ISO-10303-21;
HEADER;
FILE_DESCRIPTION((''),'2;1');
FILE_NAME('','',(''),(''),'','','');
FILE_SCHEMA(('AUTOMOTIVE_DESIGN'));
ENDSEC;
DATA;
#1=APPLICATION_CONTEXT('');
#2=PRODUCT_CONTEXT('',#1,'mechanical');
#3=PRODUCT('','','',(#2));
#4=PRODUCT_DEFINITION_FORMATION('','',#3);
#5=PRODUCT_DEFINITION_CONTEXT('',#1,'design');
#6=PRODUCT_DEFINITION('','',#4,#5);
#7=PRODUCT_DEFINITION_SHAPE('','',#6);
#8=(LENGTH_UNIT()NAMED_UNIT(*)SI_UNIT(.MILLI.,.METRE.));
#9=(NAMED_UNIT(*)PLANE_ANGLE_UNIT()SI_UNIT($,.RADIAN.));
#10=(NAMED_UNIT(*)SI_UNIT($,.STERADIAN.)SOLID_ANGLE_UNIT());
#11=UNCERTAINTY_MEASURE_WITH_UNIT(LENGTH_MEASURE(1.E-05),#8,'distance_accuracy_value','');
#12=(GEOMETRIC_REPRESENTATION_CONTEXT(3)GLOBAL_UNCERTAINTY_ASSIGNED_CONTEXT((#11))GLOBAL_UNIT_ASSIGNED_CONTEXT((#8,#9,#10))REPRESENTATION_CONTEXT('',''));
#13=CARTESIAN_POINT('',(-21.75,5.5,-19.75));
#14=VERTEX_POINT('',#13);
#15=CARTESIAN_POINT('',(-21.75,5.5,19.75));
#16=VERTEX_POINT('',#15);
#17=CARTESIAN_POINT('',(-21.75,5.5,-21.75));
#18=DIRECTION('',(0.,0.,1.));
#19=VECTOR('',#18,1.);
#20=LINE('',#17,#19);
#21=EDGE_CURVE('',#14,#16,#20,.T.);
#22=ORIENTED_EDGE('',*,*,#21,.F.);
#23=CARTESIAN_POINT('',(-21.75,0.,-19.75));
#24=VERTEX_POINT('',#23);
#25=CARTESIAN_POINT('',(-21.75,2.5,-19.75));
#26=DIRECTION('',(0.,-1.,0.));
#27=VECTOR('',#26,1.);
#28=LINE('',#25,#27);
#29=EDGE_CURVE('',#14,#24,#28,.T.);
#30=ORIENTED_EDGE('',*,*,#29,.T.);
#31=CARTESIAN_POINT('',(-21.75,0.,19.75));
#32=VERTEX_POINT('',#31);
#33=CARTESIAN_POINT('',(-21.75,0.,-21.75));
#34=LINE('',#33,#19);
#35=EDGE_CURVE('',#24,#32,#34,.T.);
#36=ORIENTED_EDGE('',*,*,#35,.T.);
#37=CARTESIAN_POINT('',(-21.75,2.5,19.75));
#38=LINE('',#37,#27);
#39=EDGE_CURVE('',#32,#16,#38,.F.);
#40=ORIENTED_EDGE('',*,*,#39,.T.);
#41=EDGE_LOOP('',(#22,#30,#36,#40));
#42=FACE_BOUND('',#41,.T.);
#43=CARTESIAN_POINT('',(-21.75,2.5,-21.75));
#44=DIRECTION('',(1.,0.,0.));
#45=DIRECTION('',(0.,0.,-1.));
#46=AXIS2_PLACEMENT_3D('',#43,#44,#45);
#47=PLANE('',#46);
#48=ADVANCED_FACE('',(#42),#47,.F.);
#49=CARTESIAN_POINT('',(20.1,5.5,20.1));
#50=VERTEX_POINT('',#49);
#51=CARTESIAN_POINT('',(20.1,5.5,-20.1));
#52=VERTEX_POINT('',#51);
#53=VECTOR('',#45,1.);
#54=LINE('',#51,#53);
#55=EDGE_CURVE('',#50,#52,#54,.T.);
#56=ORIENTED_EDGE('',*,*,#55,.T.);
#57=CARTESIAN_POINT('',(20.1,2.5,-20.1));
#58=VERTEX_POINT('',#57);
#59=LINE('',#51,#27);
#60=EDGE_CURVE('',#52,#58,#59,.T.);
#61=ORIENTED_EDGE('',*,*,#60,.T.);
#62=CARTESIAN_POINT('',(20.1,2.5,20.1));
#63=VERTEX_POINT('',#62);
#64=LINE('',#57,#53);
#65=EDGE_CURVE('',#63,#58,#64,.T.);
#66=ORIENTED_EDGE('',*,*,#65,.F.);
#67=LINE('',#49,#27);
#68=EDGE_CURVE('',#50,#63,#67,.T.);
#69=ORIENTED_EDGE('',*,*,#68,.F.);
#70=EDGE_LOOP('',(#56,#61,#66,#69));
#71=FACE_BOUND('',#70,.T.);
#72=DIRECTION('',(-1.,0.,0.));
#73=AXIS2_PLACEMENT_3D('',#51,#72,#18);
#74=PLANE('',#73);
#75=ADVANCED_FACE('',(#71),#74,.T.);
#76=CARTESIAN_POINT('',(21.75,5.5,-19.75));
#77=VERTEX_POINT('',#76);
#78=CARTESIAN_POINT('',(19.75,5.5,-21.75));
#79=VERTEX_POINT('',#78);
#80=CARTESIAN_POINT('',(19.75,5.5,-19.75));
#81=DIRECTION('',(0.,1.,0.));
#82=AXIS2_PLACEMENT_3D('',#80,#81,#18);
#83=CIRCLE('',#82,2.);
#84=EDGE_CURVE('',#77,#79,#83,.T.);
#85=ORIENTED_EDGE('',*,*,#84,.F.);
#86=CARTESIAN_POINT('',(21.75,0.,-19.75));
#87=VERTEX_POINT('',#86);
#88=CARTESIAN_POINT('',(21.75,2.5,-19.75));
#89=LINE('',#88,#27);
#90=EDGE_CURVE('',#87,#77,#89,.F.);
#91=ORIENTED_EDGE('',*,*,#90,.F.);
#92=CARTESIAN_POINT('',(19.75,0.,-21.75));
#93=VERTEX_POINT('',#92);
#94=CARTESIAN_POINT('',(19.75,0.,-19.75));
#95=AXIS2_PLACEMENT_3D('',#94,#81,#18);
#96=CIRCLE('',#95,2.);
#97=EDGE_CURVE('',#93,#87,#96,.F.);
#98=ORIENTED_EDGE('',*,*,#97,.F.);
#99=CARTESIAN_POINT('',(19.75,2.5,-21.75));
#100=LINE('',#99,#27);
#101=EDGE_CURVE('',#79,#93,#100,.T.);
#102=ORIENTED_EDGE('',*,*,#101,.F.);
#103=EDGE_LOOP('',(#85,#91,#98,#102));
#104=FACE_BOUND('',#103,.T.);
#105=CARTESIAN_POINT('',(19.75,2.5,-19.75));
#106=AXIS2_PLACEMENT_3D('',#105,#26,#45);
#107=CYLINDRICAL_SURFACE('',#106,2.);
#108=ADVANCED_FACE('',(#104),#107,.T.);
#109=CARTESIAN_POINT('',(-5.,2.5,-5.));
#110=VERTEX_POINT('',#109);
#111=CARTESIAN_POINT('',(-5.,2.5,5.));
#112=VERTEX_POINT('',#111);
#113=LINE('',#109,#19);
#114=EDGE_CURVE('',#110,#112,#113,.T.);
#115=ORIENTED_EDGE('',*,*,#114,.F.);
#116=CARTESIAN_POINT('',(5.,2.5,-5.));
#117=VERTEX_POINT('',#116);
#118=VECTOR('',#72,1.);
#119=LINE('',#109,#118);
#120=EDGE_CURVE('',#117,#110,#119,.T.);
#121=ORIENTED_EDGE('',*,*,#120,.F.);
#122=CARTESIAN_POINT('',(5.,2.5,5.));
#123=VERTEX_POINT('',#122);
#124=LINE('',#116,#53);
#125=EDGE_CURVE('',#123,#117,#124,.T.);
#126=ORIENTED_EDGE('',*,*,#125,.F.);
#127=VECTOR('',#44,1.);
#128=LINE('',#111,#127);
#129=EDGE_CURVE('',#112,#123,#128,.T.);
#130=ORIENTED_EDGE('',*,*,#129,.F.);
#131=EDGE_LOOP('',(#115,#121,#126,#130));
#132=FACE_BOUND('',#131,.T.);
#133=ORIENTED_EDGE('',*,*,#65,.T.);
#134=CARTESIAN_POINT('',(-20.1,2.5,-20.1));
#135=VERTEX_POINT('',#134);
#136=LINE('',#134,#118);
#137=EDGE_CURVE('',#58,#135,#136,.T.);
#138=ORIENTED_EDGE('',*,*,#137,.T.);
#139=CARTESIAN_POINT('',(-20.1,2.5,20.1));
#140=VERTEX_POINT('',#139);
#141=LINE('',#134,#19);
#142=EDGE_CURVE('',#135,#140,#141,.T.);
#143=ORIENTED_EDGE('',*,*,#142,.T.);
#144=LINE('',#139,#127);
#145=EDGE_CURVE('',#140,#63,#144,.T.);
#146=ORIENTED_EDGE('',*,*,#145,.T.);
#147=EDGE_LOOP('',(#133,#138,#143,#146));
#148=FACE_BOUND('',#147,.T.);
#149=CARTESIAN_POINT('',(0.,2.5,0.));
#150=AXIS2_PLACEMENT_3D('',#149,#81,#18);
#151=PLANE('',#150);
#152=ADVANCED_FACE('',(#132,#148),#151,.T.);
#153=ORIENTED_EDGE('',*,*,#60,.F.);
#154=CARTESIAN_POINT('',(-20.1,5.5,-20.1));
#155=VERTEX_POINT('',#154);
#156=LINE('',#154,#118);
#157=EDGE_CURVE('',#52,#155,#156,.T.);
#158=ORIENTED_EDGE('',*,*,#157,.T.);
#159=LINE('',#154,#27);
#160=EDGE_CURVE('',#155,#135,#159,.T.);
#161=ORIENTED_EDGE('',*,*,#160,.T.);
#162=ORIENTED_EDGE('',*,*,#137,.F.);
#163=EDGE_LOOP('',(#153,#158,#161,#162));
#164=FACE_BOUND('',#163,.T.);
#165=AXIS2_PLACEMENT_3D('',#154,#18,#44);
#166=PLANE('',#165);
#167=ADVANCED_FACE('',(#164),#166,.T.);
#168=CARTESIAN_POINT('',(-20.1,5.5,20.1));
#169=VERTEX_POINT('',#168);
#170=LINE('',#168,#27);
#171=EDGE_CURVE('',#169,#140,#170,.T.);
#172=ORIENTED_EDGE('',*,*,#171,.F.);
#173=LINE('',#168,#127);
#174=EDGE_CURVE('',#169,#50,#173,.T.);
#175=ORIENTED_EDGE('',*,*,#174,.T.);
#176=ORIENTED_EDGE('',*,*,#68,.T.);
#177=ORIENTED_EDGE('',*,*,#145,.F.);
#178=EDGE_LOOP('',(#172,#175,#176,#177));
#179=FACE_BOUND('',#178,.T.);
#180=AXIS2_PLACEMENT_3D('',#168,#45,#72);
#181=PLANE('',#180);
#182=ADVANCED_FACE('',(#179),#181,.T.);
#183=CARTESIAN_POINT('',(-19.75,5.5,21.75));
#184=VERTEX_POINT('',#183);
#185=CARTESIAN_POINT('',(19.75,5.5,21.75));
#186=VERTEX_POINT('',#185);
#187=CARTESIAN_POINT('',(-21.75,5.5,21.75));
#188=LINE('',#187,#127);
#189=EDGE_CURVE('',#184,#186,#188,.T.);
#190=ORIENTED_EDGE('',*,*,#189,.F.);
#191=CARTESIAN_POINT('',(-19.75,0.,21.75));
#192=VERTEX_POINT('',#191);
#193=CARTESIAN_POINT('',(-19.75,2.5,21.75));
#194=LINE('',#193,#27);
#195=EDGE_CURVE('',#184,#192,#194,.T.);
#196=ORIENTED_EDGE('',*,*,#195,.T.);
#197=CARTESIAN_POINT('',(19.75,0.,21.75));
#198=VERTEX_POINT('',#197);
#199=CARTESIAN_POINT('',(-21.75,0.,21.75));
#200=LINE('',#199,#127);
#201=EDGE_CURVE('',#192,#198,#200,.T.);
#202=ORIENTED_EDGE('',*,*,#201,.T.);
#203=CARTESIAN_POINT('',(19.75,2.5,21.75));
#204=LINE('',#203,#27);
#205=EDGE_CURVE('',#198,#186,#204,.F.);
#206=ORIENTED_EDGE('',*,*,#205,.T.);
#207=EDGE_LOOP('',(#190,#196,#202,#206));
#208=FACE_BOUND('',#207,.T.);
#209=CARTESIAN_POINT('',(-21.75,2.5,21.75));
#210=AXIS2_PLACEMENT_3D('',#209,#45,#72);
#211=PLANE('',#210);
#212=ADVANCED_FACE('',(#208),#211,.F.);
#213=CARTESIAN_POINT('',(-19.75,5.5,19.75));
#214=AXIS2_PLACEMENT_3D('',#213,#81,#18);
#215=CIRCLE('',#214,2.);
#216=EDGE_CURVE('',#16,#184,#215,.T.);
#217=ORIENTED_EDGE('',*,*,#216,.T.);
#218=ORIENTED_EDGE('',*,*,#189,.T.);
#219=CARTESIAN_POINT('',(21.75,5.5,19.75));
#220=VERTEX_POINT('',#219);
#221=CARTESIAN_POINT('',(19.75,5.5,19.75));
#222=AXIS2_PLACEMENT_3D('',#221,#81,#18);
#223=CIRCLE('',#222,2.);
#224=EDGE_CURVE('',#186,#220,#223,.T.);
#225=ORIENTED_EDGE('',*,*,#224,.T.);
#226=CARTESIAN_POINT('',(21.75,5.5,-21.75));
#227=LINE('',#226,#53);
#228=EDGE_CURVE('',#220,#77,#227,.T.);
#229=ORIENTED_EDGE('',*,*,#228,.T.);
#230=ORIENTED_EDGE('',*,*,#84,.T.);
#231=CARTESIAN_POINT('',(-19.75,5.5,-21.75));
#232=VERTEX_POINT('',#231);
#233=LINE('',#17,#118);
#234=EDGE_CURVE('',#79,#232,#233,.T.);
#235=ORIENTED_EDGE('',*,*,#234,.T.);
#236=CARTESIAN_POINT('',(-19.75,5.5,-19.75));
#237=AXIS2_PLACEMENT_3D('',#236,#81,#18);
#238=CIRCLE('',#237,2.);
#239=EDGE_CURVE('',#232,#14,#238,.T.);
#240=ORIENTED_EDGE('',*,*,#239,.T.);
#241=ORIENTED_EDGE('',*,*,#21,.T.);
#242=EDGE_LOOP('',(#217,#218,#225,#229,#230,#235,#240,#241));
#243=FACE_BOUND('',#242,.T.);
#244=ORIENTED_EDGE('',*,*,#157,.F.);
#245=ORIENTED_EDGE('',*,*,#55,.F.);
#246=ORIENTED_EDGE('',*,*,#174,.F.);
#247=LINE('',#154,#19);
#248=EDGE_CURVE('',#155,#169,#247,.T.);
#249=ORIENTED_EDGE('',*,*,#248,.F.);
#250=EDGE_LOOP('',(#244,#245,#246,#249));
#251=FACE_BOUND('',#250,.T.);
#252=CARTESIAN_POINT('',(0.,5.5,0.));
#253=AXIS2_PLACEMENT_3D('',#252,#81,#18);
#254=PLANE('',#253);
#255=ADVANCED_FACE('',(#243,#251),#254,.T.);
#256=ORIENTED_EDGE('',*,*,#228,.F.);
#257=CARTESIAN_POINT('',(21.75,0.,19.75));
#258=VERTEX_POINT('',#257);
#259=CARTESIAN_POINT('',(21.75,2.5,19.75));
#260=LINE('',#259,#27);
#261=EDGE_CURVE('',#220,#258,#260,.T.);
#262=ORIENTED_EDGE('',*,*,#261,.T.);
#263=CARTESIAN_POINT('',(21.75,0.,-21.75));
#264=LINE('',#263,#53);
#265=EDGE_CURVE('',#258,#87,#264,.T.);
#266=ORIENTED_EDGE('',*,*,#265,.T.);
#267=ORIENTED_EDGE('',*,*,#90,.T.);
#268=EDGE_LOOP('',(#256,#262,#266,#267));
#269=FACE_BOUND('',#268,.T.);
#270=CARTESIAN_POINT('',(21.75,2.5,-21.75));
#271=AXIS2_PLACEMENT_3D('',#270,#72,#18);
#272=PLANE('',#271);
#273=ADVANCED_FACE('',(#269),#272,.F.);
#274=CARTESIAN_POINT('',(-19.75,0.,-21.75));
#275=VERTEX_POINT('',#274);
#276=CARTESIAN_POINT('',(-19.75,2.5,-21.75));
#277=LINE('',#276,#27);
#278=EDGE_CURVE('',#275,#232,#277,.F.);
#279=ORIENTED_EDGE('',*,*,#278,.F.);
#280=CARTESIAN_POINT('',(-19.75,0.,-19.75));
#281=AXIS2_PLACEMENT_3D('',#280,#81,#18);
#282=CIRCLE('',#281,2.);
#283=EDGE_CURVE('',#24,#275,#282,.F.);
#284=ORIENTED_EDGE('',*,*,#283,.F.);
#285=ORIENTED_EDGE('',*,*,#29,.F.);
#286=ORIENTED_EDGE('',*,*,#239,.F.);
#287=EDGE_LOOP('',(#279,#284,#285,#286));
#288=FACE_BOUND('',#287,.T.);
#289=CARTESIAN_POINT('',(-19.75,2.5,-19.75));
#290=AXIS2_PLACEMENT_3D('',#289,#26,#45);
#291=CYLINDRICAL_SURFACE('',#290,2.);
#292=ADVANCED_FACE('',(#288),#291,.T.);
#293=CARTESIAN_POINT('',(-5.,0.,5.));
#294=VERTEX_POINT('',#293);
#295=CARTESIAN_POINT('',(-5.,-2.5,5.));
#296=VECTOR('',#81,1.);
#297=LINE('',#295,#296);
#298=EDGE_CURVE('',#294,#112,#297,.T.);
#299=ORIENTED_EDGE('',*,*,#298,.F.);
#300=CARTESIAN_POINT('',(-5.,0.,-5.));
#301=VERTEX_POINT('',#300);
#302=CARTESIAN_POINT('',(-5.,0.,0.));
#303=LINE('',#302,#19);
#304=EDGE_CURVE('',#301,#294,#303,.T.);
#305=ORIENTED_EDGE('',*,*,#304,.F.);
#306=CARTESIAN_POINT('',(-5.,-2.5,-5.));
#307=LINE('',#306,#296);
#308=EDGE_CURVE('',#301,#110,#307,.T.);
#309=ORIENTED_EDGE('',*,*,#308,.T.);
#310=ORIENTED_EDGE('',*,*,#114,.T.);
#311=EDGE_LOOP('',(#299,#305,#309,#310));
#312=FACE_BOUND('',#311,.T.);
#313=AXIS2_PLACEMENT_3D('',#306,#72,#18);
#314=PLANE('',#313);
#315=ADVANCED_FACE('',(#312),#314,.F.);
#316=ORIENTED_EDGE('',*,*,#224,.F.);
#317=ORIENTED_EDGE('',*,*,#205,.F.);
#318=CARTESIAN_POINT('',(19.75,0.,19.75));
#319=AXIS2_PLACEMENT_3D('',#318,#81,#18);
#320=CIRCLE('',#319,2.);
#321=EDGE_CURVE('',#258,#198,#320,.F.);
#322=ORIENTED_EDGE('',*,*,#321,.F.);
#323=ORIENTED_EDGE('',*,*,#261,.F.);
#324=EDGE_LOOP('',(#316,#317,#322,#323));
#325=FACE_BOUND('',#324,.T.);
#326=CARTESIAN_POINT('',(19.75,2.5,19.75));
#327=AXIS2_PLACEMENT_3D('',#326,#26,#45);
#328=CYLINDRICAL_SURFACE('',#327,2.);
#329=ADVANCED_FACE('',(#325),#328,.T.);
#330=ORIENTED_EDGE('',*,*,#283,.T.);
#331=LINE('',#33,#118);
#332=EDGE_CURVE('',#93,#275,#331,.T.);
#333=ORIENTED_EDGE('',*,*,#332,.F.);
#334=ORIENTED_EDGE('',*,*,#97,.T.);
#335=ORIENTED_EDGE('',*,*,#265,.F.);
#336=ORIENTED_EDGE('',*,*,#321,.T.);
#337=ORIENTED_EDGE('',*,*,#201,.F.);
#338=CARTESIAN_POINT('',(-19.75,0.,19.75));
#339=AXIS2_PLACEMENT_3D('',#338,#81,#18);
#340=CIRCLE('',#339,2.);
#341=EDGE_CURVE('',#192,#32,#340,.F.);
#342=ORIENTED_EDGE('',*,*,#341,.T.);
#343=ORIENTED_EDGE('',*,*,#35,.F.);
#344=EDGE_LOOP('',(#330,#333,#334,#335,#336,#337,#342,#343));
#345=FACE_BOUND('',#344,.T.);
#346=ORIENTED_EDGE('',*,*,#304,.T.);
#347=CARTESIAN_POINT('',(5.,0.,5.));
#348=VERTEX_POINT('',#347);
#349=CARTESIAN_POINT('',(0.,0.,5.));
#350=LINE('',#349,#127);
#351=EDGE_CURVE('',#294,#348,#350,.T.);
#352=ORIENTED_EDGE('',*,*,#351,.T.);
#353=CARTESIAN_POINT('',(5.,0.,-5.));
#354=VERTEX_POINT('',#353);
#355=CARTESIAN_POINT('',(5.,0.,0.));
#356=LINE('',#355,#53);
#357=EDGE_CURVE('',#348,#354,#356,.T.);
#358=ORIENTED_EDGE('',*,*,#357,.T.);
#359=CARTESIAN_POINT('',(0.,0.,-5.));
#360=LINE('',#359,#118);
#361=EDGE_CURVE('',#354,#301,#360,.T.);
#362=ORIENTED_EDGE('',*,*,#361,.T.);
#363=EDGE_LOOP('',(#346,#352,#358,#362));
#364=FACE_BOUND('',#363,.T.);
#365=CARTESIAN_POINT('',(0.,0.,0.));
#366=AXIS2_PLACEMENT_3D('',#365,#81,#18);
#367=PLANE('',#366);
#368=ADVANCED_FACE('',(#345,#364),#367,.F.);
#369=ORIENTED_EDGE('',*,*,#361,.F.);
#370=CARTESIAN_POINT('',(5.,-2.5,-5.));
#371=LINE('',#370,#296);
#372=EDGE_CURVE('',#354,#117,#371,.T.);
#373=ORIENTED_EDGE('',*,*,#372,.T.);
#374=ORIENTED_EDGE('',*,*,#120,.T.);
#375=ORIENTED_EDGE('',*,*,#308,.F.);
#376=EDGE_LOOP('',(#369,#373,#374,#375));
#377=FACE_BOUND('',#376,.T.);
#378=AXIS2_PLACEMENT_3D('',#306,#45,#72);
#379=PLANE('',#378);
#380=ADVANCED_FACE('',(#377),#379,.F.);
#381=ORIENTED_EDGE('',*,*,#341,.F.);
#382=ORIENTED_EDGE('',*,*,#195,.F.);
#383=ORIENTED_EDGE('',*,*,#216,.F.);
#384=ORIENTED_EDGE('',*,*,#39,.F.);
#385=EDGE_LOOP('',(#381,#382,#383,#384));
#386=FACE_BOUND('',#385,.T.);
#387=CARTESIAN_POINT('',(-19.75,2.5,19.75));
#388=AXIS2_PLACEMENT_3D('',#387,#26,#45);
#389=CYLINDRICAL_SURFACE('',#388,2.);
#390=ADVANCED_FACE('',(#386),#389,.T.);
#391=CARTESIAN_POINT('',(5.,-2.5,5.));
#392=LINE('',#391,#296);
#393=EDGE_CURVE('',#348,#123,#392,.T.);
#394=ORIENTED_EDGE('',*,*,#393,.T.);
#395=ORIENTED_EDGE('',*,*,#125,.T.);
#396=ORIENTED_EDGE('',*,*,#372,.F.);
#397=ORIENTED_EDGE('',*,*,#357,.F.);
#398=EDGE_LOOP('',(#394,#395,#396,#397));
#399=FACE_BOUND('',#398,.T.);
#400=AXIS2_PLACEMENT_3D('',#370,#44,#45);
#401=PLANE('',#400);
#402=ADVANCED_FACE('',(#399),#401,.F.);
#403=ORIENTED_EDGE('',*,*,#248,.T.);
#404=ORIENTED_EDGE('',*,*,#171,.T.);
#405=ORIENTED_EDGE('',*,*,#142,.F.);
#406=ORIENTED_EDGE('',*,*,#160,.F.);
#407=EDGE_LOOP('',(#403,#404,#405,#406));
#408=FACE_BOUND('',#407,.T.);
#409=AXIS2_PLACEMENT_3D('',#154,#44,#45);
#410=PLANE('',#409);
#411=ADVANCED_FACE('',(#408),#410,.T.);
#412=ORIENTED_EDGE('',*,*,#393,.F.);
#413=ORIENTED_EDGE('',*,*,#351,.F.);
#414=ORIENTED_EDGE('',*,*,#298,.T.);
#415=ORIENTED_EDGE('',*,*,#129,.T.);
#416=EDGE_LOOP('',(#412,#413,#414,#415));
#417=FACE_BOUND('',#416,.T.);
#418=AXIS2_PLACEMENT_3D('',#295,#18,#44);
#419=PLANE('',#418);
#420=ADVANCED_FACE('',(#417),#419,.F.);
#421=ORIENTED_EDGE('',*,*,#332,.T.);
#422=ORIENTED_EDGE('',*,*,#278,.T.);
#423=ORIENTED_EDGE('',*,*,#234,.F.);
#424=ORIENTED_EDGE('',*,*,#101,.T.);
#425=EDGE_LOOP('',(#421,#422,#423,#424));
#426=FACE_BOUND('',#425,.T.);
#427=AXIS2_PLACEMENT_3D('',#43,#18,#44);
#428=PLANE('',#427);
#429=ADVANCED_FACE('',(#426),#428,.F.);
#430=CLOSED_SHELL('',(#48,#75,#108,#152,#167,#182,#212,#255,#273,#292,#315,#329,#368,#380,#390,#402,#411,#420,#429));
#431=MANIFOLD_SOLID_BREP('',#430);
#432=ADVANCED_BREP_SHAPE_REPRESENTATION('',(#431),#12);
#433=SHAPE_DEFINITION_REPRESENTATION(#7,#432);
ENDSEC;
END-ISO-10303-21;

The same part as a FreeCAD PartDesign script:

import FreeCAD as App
import Part
import Sketcher
Q = App.Units.Quantity


def edges_at(feature, points):
    """Names of the edges that pass closest to the given points."""
    edges = feature.Shape.Edges
    near = lambda p: min(range(len(edges)), key=lambda i: edges[i].distToShape(Part.Vertex(*p))[0])
    return sorted({f"Edge{near(p) + 1}" for p in points})


def add_polygon(sketch, points):
    """Adds a closed chain of lines whose ends are joined by coincident constraints."""
    first, n = sketch.GeometryCount, len(points)
    for a, b in zip(points, points[1:] + points[:1]):
        sketch.addGeometry(Part.LineSegment(App.Vector(*a, 0), App.Vector(*b, 0)), False)
    for i in range(n):
        sketch.addConstraint(Sketcher.Constraint("Coincident", first + i, 2, first + (i + 1) % n, 1))

doc = App.newDocument("Part")
body = doc.addObject("PartDesign::Body", "Body")

# Sketch on XZ plane
sketch1 = body.newObject("Sketcher::SketchObject", "Sketch")
sketch1.AttachmentSupport = (doc.getObject("XZ_Plane"), [""])
sketch1.MapMode = "FlatFace"
add_polygon(sketch1, [(-22, -22), (-22, 22), (22, 22), (22, -22)])  # lines 0-3
sketch1.addConstraint([
    Sketcher.Constraint("Vertical", 0),
    Sketcher.Constraint("Horizontal", 1),
    Sketcher.Constraint("Vertical", 2),
    Sketcher.Constraint("Horizontal", 3),
    Sketcher.Constraint("Symmetric", 0, 2, 2, 2, -1, 1),
    Sketcher.Constraint("Equal", 3, 0),
    Sketcher.Constraint("DistanceX", 1, 1, 1, 2, Q("43.5 mm")),
])
pad1 = body.newObject("PartDesign::Pad", "Pad")
pad1.Profile = sketch1
pad1.Length = 2.5
pad1.Reversed = True

# Sketch on XZ plane
sketch2 = body.newObject("Sketcher::SketchObject", "Sketch001")
sketch2.AttachmentSupport = (doc.getObject("XZ_Plane"), [""])
sketch2.MapMode = "FlatFace"
sketch2.AttachmentOffset = App.Placement(App.Vector(0, 0, -2.5), App.Rotation())
add_polygon(sketch2, [(-22, -22), (-22, 22), (22, 22), (22, -22)])  # lines 0-3
add_polygon(sketch2, [(20, 20), (-20, 20), (-20, -20), (20, -20)])  # lines 4-7
sketch2.addConstraint([
    Sketcher.Constraint("Vertical", 0),
    Sketcher.Constraint("Horizontal", 1),
    Sketcher.Constraint("Vertical", 2),
    Sketcher.Constraint("Horizontal", 3),
    Sketcher.Constraint("Horizontal", 4),
    Sketcher.Constraint("Vertical", 5),
    Sketcher.Constraint("Horizontal", 6),
    Sketcher.Constraint("Vertical", 7),
    Sketcher.Constraint("Symmetric", 0, 2, 2, 2, -1, 1),
    Sketcher.Constraint("Symmetric", 4, 2, 6, 2, -1, 1),
    Sketcher.Constraint("Equal", 3, 0),
    Sketcher.Constraint("Equal", 6, 5),
    Sketcher.Constraint("DistanceX", 1, 1, 1, 2, Q("43.5 mm")),
    Sketcher.Constraint("DistanceX", 4, 2, 4, 1, Q("40.2 mm")),
])
pad2 = body.newObject("PartDesign::Pad", "Pad001")
pad2.Profile = sketch2
pad2.Length = 3
pad2.Reversed = True

# Sketch on XZ plane
sketch3 = body.newObject("Sketcher::SketchObject", "Sketch002")
sketch3.AttachmentSupport = (doc.getObject("XZ_Plane"), [""])
sketch3.MapMode = "FlatFace"
sketch3.AttachmentOffset = App.Placement(App.Vector(0, 0, -2.5), App.Rotation())
add_polygon(sketch3, [(-5, -5), (-5, 5), (5, 5), (5, -5)])  # lines 0-3
sketch3.addConstraint([
    Sketcher.Constraint("Vertical", 0),
    Sketcher.Constraint("Horizontal", 1),
    Sketcher.Constraint("Vertical", 2),
    Sketcher.Constraint("Horizontal", 3),
    Sketcher.Constraint("Symmetric", 0, 2, 2, 2, -1, 1),
    Sketcher.Constraint("Equal", 3, 0),
    Sketcher.Constraint("DistanceX", 1, 1, 1, 2, Q("10 mm")),
])
pocket1 = body.newObject("PartDesign::Pocket", "Pocket")
pocket1.Profile = sketch3
pocket1.Length = 5
pocket1.Reversed = True
doc.recompute()

fillet = body.newObject("PartDesign::Fillet", "Fillet")
fillet.Base = (pocket1, edges_at(pocket1, [
    (21.75, 2.75, 21.75),
    (-21.75, 2.75, 21.75),
    (-21.75, 2.75, -21.75),
    (21.75, 2.75, -21.75),
]))
fillet.Radius = 2

doc.recompute()
